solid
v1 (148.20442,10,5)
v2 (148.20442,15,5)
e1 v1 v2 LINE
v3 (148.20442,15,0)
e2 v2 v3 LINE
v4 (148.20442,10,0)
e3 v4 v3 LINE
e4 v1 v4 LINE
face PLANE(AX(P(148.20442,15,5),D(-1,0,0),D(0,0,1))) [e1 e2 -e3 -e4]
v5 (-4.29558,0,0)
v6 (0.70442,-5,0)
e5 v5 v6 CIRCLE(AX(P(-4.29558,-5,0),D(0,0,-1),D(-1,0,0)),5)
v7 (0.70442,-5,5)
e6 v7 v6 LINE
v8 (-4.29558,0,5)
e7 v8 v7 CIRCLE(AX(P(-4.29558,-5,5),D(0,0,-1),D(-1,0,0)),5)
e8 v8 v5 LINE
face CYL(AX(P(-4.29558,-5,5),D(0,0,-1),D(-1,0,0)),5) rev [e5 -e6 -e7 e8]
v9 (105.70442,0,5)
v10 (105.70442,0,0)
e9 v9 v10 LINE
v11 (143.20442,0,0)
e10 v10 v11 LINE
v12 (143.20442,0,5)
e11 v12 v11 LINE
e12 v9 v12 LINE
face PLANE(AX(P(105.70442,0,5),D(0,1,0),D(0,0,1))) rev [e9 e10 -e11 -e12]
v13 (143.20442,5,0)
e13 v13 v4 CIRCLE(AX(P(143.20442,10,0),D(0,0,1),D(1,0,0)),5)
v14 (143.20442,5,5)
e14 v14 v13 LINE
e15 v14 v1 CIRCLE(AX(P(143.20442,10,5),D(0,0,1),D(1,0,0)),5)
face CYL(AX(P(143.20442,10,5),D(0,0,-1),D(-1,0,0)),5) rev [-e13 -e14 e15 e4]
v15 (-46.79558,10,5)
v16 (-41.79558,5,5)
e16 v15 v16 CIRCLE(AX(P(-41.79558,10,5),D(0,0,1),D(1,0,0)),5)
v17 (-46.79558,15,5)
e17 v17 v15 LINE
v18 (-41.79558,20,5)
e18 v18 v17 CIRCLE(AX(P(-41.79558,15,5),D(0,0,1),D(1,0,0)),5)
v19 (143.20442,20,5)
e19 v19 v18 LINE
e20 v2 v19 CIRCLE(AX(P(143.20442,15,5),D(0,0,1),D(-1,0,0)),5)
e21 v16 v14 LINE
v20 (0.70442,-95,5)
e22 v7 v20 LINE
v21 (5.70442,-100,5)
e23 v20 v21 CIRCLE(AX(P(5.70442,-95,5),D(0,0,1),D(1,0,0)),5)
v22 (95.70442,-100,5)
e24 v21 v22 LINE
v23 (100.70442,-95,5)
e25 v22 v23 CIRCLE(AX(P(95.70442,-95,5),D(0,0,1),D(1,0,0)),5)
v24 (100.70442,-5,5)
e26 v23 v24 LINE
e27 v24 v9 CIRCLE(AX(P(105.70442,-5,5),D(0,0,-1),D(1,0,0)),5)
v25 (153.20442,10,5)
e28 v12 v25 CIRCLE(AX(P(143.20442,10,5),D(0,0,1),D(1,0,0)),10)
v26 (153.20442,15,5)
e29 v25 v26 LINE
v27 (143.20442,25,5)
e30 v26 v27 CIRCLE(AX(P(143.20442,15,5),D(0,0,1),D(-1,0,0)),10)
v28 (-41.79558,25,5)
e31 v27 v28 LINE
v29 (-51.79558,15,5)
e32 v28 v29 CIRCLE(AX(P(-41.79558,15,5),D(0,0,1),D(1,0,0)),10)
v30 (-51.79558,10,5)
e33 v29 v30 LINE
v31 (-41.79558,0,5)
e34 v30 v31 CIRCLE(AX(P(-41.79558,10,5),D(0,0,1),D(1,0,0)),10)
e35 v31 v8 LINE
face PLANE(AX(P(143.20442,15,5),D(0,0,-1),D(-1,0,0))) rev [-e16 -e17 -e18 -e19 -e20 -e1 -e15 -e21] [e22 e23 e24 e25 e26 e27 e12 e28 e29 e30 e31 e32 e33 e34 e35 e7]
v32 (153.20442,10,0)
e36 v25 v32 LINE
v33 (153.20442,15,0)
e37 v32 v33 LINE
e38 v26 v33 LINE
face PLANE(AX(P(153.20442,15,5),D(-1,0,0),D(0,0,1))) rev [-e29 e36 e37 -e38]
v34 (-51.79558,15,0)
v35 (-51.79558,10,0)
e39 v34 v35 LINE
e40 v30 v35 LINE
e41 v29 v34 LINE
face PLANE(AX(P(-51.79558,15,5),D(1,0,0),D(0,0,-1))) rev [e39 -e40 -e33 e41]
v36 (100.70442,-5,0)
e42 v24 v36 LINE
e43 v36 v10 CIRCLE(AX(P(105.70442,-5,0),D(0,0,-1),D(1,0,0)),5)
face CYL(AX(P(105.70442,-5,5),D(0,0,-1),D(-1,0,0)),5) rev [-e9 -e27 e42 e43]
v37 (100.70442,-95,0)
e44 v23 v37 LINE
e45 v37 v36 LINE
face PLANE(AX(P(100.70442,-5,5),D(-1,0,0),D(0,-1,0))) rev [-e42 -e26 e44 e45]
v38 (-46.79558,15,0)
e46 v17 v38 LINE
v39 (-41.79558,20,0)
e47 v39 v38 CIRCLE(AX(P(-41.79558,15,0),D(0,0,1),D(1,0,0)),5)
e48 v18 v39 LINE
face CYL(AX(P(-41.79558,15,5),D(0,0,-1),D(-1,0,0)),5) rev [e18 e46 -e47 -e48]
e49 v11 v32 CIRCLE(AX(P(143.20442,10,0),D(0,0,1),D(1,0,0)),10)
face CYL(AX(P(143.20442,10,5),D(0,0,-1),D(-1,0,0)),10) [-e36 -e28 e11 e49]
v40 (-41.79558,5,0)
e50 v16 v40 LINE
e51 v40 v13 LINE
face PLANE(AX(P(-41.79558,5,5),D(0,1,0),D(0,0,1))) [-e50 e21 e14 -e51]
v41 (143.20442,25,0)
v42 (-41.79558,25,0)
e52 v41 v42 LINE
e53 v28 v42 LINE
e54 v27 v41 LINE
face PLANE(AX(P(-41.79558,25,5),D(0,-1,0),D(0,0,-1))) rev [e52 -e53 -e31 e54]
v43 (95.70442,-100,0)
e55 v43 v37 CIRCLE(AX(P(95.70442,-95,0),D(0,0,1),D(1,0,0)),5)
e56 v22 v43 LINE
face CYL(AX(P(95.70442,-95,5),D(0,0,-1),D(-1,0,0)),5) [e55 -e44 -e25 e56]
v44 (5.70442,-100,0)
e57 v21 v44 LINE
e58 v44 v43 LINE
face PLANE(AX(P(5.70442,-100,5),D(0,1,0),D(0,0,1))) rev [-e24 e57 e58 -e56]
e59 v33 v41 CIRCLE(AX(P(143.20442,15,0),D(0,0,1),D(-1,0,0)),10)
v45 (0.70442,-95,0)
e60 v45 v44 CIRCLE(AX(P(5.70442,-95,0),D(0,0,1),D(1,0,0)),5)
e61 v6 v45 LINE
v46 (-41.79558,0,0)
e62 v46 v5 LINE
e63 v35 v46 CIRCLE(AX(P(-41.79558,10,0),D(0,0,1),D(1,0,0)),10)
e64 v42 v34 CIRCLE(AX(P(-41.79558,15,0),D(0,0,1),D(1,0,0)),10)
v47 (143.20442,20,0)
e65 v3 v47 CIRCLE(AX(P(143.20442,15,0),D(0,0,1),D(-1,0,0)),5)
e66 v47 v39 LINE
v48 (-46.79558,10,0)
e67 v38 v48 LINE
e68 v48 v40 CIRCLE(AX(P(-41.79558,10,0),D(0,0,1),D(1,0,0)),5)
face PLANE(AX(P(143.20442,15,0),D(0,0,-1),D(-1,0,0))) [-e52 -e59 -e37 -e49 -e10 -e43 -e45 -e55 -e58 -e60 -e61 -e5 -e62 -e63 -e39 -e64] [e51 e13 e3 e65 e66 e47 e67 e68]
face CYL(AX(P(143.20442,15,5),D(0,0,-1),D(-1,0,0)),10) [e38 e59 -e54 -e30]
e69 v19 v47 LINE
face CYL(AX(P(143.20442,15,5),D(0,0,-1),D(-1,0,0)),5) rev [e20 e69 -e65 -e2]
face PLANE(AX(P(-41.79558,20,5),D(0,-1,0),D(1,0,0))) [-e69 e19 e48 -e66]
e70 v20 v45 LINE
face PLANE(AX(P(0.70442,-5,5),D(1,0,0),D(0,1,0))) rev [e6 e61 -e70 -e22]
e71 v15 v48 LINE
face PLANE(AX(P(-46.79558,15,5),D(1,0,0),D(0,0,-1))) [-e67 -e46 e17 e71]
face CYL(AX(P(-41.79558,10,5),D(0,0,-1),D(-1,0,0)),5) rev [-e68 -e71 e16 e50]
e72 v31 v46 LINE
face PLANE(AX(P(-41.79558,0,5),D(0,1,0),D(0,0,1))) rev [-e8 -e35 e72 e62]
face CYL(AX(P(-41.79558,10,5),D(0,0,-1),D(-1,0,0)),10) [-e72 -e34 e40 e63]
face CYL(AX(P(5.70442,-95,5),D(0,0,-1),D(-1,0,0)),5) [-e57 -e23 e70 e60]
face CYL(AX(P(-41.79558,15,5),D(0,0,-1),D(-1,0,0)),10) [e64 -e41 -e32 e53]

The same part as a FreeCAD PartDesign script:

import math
import FreeCAD as App
import Part
import Sketcher
from FreeCAD import Vector

doc = App.newDocument("Part")
params = doc.addObject("Spreadsheet::Sheet", "Params")
for row, (alias, value) in enumerate([
    ("sketch1_radius", "10 mm"),
    ("sketch1_radius2", "5 mm"),
    ("sketch1_width", "185 mm"),
    ("sketch1_width2", "90 mm"),
    ("sketch1_height", "5 mm"),
    ("pad1_length", "5 mm"),
], start=1):
    params.set(f"A{row}", alias)
    params.set(f"B{row}", "=" + value)
    params.setAlias(f"B{row}", alias)

body = doc.addObject("PartDesign::Body", "Body")

# Sketch on XY plane
sketch1 = body.newObject("Sketcher::SketchObject", "Sketch")
sketch1.AttachmentSupport = (doc.getObject("XY_Plane"), [""])
sketch1.MapMode = "FlatFace"
sketch1.addGeometry([
    Part.LineSegment(Vector(105.70442, 0, 0), Vector(143.20442, 0, 0)),  # 0
    Part.ArcOfCircle(Part.Circle(Vector(143.20442, 10, 0), Vector(0, 0, 1), 10), math.radians(-90), math.radians(0)),  # 1
    Part.LineSegment(Vector(153.20442, 10, 0), Vector(153.20442, 15, 0)),  # 2
    Part.ArcOfCircle(Part.Circle(Vector(143.20442, 15, 0), Vector(0, 0, 1), 10), math.radians(0), math.radians(90)),  # 3
    Part.LineSegment(Vector(143.20442, 25, 0), Vector(-41.79558, 25, 0)),  # 4
    Part.ArcOfCircle(Part.Circle(Vector(-41.79558, 15, 0), Vector(0, 0, 1), 10), math.radians(90), math.radians(180)),  # 5
    Part.LineSegment(Vector(-51.79558, 15, 0), Vector(-51.79558, 10, 0)),  # 6
    Part.ArcOfCircle(Part.Circle(Vector(-41.79558, 10, 0), Vector(0, 0, 1), 10), math.radians(180), math.radians(270)),  # 7
    Part.LineSegment(Vector(-41.79558, 0, 0), Vector(-4.29558, 0, 0)),  # 8
    Part.ArcOfCircle(Part.Circle(Vector(-4.29558, -5, 0), Vector(0, 0, 1), 5), math.radians(0), math.radians(90)),  # 9
    Part.LineSegment(Vector(0.70442, -5, 0), Vector(0.70442, -95, 0)),  # 10
    Part.ArcOfCircle(Part.Circle(Vector(5.70442, -95, 0), Vector(0, 0, 1), 5), math.radians(180), math.radians(270)),  # 11
    Part.LineSegment(Vector(5.70442, -100, 0), Vector(95.70442, -100, 0)),  # 12
    Part.ArcOfCircle(Part.Circle(Vector(95.70442, -95, 0), Vector(0, 0, 1), 5), math.radians(-90), math.radians(0)),  # 13
    Part.LineSegment(Vector(100.70442, -95, 0), Vector(100.70442, -5, 0)),  # 14
    Part.ArcOfCircle(Part.Circle(Vector(105.70442, -5, 0), Vector(0, 0, 1), 5), math.radians(90), math.radians(180)),  # 15
    Part.ArcOfCircle(Part.Circle(Vector(-41.79558, 15, 0), Vector(0, 0, 1), 5), math.radians(90), math.radians(180)),  # 16
    Part.LineSegment(Vector(-41.79558, 20, 0), Vector(143.20442, 20, 0)),  # 17
    Part.ArcOfCircle(Part.Circle(Vector(143.20442, 15, 0), Vector(0, 0, 1), 5), math.radians(0), math.radians(90)),  # 18
    Part.LineSegment(Vector(148.20442, 15, 0), Vector(148.20442, 10, 0)),  # 19
    Part.ArcOfCircle(Part.Circle(Vector(143.20442, 10, 0), Vector(0, 0, 1), 5), math.radians(-90), math.radians(0)),  # 20
    Part.LineSegment(Vector(143.20442, 5, 0), Vector(-41.79558, 5, 0)),  # 21
    Part.ArcOfCircle(Part.Circle(Vector(-41.79558, 10, 0), Vector(0, 0, 1), 5), math.radians(180), math.radians(270)),  # 22
    Part.LineSegment(Vector(-46.79558, 10, 0), Vector(-46.79558, 15, 0)),  # 23
], False)
sketch1.addConstraint([
    Sketcher.Constraint("Tangent", 0, 2, 1, 1),
    Sketcher.Constraint("Tangent", 1, 2, 2, 1),
    Sketcher.Constraint("Tangent", 2, 2, 3, 1),
    Sketcher.Constraint("Tangent", 3, 2, 4, 1),
    Sketcher.Constraint("Tangent", 4, 2, 5, 1),
    Sketcher.Constraint("Tangent", 5, 2, 6, 1),
    Sketcher.Constraint("Tangent", 6, 2, 7, 1),
    Sketcher.Constraint("Tangent", 7, 2, 8, 1),
    Sketcher.Constraint("Tangent", 8, 2, 9, 2),
    Sketcher.Constraint("Tangent", 9, 1, 10, 1),
    Sketcher.Constraint("Tangent", 10, 2, 11, 1),
    Sketcher.Constraint("Tangent", 11, 2, 12, 1),
    Sketcher.Constraint("Tangent", 12, 2, 13, 1),
    Sketcher.Constraint("Tangent", 13, 2, 14, 1),
    Sketcher.Constraint("Tangent", 14, 2, 15, 2),
    Sketcher.Constraint("Tangent", 15, 1, 0, 1),
    Sketcher.Constraint("Tangent", 16, 1, 17, 1),
    Sketcher.Constraint("Tangent", 17, 2, 18, 2),
    Sketcher.Constraint("Tangent", 18, 1, 19, 1),
    Sketcher.Constraint("Tangent", 19, 2, 20, 2),
    Sketcher.Constraint("Tangent", 20, 1, 21, 1),
    Sketcher.Constraint("Tangent", 21, 2, 22, 2),
    Sketcher.Constraint("Tangent", 22, 1, 23, 1),
    Sketcher.Constraint("Tangent", 23, 2, 16, 2),
    Sketcher.Constraint("Horizontal", 0),
    Sketcher.Constraint("Vertical", 2),
    Sketcher.Constraint("Horizontal", 4),
    Sketcher.Constraint("Vertical", 6),
    Sketcher.Constraint("Horizontal", 8),
    Sketcher.Constraint("Vertical", 10),
    Sketcher.Constraint("Horizontal", 12),
    Sketcher.Constraint("Vertical", 14),
    Sketcher.Constraint("Horizontal", 17),
    Sketcher.Constraint("Vertical", 19),
    Sketcher.Constraint("Horizontal", 21),
    Sketcher.Constraint("Vertical", 23),
    Sketcher.Constraint("Coincident", 16, 3, 5, 3),
    Sketcher.Constraint("Coincident", 18, 3, 3, 3),
    Sketcher.Constraint("Coincident", 20, 3, 1, 3),
    Sketcher.Constraint("Coincident", 22, 3, 7, 3),
    Sketcher.Constraint("Equal", 1, 3),
    Sketcher.Constraint("Equal", 3, 5),
    Sketcher.Constraint("Equal", 5, 7),
    Sketcher.Constraint("Equal", 9, 11),
    Sketcher.Constraint("Equal", 11, 13),
    Sketcher.Constraint("Equal", 13, 15),
    Sketcher.Constraint("Equal", 15, 16),
    Sketcher.Constraint("PointOnObject", 0, 2, -1),
    Sketcher.Constraint("Equal", 0, 8),
    Sketcher.Constraint("Equal", 12, 10),
    Sketcher.Constraint("Radius", 1, 10.0),
    Sketcher.Constraint("Radius", 9, 5.0),
    Sketcher.Constraint("DistanceX", 4, 2, 4, 1, 185.0),
    Sketcher.Constraint("DistanceX", 12, 1, 12, 2, 90.0),
    Sketcher.Constraint("DistanceY", 2, 1, 2, 2, 5.0),
    Sketcher.Constraint("DistanceX", -1, 1, 1, 3, 143.20442),
])
sketch1.setExpression("Constraints[50]", "Params.sketch1_radius")
sketch1.setExpression("Constraints[51]", "Params.sketch1_radius2")
sketch1.setExpression("Constraints[52]", "Params.sketch1_width")
sketch1.setExpression("Constraints[53]", "Params.sketch1_width2")
sketch1.setExpression("Constraints[54]", "Params.sketch1_height")
pad1 = body.newObject("PartDesign::Pad", "Pad")
pad1.Profile = sketch1
pad1.setExpression("Length", "Params.pad1_length")

doc.recompute()
